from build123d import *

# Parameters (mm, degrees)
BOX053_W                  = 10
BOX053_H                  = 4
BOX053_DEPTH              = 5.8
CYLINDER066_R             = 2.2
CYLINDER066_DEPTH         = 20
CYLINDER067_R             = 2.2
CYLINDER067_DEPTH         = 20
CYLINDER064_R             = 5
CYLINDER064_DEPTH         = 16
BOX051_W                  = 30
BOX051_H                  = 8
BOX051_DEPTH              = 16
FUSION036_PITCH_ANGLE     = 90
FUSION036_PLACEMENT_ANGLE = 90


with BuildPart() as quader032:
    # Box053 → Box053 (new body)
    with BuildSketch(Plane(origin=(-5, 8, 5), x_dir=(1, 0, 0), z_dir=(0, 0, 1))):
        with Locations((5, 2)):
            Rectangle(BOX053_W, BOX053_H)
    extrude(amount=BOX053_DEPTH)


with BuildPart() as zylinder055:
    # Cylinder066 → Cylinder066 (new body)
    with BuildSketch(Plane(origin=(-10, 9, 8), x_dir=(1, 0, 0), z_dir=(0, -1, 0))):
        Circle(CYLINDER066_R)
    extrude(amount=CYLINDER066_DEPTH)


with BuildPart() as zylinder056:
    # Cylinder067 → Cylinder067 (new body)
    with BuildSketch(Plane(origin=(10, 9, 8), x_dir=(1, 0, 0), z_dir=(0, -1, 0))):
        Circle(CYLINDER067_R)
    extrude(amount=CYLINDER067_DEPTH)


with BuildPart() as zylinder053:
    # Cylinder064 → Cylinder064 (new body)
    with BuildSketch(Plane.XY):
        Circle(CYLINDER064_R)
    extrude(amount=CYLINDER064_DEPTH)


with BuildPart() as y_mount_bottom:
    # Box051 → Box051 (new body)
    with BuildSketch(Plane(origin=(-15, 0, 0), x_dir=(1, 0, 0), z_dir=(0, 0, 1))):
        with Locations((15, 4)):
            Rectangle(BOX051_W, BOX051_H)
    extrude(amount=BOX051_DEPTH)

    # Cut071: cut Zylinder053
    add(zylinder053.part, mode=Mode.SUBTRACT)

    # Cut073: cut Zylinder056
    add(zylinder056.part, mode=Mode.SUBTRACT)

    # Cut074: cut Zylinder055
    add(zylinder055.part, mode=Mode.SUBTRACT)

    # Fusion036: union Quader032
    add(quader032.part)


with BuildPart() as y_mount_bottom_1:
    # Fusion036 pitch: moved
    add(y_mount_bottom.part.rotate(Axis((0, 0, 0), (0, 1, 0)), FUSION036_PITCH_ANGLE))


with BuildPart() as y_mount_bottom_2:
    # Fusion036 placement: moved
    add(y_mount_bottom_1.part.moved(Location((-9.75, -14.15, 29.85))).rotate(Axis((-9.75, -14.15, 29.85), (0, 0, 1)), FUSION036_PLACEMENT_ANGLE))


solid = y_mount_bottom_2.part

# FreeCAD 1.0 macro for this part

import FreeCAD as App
import Part
import Sketcher
from FreeCAD import Vector


def add_polygon(sketch, points):
    """Adds a closed chain of lines whose ends are joined by coincident constraints."""
    first, n = sketch.GeometryCount, len(points)
    for a, b in zip(points, points[1:] + points[:1]):
        sketch.addGeometry(Part.LineSegment(App.Vector(*a, 0), App.Vector(*b, 0)), False)
    for i in range(n):
        sketch.addConstraint(Sketcher.Constraint("Coincident", first + i, 2, first + (i + 1) % n, 1))

doc = App.newDocument("Part")
body = doc.addObject("PartDesign::Body", "Body")

# Sketch on XY plane
sketch1 = body.newObject("Sketcher::SketchObject", "Sketch")
sketch1.AttachmentSupport = (doc.getObject("XY_Plane"), [""])
sketch1.MapMode = "FlatFace"
sketch1.AttachmentOffset = App.Placement(Vector(0, 0, 5), App.Rotation())
add_polygon(sketch1, [(-5, 12), (-5, 8), (5, 8), (5, 12)])  # lines 0-3
sketch1.addConstraint(Sketcher.Constraint("Vertical", 0))
sketch1.addConstraint(Sketcher.Constraint("Horizontal", 1))
sketch1.addConstraint(Sketcher.Constraint("Vertical", 2))
sketch1.addConstraint(Sketcher.Constraint("Horizontal", 3))
sketch1.addConstraint(Sketcher.Constraint("DistanceX", 1, 1, 1, 2, 10.0))
sketch1.addConstraint(Sketcher.Constraint("DistanceY", 0, 2, 0, 1, 4.0))
sketch1.addConstraint(Sketcher.Constraint("DistanceX", 0, 2, -1, 1, 5.0))
sketch1.addConstraint(Sketcher.Constraint("DistanceY", -1, 1, 0, 2, 8.0))
pad1 = body.newObject("PartDesign::Pad", "Pad")
pad1.Profile = sketch1
pad1.Length = 5.8
body2 = doc.addObject("PartDesign::Body", "Body001")

# Sketch on XZ plane
sketch2 = body2.newObject("Sketcher::SketchObject", "Sketch001")
sketch2.AttachmentSupport = (doc.getObject("XZ_Plane001"), [""])
sketch2.MapMode = "FlatFace"
sketch2.AttachmentOffset = App.Placement(Vector(0, 0, -9), App.Rotation())
sketch2.addGeometry(Part.Circle(Vector(-10, 8, 0), Vector(0, 0, 1), 2.2), False)
sketch2.addConstraint(Sketcher.Constraint("Diameter", 0, 4.4))
sketch2.addConstraint(Sketcher.Constraint("DistanceX", 0, 3, -1, 1, 10.0))
sketch2.addConstraint(Sketcher.Constraint("DistanceY", -1, 1, 0, 3, 8.0))
pad2 = body2.newObject("PartDesign::Pad", "Pad001")
pad2.Profile = sketch2
pad2.Length = 20
body3 = doc.addObject("PartDesign::Body", "Body002")

# Sketch on XZ plane
sketch3 = body3.newObject("Sketcher::SketchObject", "Sketch002")
sketch3.AttachmentSupport = (doc.getObject("XZ_Plane002"), [""])
sketch3.MapMode = "FlatFace"
sketch3.AttachmentOffset = App.Placement(Vector(0, 0, -9), App.Rotation())
sketch3.addGeometry(Part.Circle(Vector(10, 8, 0), Vector(0, 0, 1), 2.2), False)
sketch3.addConstraint(Sketcher.Constraint("Diameter", 0, 4.4))
sketch3.addConstraint(Sketcher.Constraint("DistanceX", -1, 1, 0, 3, 10.0))
sketch3.addConstraint(Sketcher.Constraint("DistanceY", -1, 1, 0, 3, 8.0))
pad3 = body3.newObject("PartDesign::Pad", "Pad002")
pad3.Profile = sketch3
pad3.Length = 20
body4 = doc.addObject("PartDesign::Body", "Body003")

# Sketch on XY plane
sketch4 = body4.newObject("Sketcher::SketchObject", "Sketch003")
sketch4.AttachmentSupport = (doc.getObject("XY_Plane003"), [""])
sketch4.MapMode = "FlatFace"
sketch4.addGeometry(Part.Circle(Vector(0, 0, 0), Vector(0, 0, 1), 5), False)
sketch4.addConstraint(Sketcher.Constraint("Coincident", 0, 3, -1, 1))
sketch4.addConstraint(Sketcher.Constraint("Diameter", 0, 10.0))
pad4 = body4.newObject("PartDesign::Pad", "Pad003")
pad4.Profile = sketch4
pad4.Length = 16
body5 = doc.addObject("PartDesign::Body", "Body004")

# Sketch on XY plane
sketch5 = body5.newObject("Sketcher::SketchObject", "Sketch004")
sketch5.AttachmentSupport = (doc.getObject("XY_Plane004"), [""])
sketch5.MapMode = "FlatFace"
add_polygon(sketch5, [(-15, 8), (-15, 0), (15, 0), (15, 8)])  # lines 0-3
sketch5.addConstraint(Sketcher.Constraint("Vertical", 0))
sketch5.addConstraint(Sketcher.Constraint("Horizontal", 1))
sketch5.addConstraint(Sketcher.Constraint("Vertical", 2))
sketch5.addConstraint(Sketcher.Constraint("Horizontal", 3))
sketch5.addConstraint(Sketcher.Constraint("Symmetric", 0, 2, 1, 2, -1, 1))
sketch5.addConstraint(Sketcher.Constraint("DistanceX", 1, 1, 1, 2, 30.0))
sketch5.addConstraint(Sketcher.Constraint("DistanceY", 0, 2, 0, 1, 8.0))
pad5 = body5.newObject("PartDesign::Pad", "Pad004")
pad5.Profile = sketch5
pad5.Length = 16
doc.recompute()

boolean = body5.newObject("PartDesign::Boolean", "Boolean")
boolean.Type = "Cut"
boolean.addObjects([body4])
doc.recompute()

boolean2 = body5.newObject("PartDesign::Boolean", "Boolean001")
boolean2.Type = "Cut"
boolean2.addObjects([body3])
doc.recompute()

boolean3 = body5.newObject("PartDesign::Boolean", "Boolean002")
boolean3.Type = "Cut"
boolean3.addObjects([body2])
doc.recompute()

boolean4 = body5.newObject("PartDesign::Boolean", "Boolean003")
boolean4.Type = "Fuse"
boolean4.addObjects([body])
body6 = doc.addObject("PartDesign::Body", "Body005")
doc.recompute()

body5.Placement = App.Placement(Vector(0, 0, 0), App.Rotation(Vector(0, 1, 0), 90))
boolean5 = body6.newObject("PartDesign::Boolean", "Boolean004")
boolean5.Type = "Fuse"
boolean5.addObjects([body5])
body7 = doc.addObject("PartDesign::Body", "Body006")
doc.recompute()

body6.Placement = App.Placement(Vector(-9.75, -14.15, 29.85), App.Rotation(Vector(0, 0, 1), 90))
boolean6 = body7.newObject("PartDesign::Boolean", "Boolean005")
boolean6.Type = "Fuse"
boolean6.addObjects([body6])

doc.recompute()
